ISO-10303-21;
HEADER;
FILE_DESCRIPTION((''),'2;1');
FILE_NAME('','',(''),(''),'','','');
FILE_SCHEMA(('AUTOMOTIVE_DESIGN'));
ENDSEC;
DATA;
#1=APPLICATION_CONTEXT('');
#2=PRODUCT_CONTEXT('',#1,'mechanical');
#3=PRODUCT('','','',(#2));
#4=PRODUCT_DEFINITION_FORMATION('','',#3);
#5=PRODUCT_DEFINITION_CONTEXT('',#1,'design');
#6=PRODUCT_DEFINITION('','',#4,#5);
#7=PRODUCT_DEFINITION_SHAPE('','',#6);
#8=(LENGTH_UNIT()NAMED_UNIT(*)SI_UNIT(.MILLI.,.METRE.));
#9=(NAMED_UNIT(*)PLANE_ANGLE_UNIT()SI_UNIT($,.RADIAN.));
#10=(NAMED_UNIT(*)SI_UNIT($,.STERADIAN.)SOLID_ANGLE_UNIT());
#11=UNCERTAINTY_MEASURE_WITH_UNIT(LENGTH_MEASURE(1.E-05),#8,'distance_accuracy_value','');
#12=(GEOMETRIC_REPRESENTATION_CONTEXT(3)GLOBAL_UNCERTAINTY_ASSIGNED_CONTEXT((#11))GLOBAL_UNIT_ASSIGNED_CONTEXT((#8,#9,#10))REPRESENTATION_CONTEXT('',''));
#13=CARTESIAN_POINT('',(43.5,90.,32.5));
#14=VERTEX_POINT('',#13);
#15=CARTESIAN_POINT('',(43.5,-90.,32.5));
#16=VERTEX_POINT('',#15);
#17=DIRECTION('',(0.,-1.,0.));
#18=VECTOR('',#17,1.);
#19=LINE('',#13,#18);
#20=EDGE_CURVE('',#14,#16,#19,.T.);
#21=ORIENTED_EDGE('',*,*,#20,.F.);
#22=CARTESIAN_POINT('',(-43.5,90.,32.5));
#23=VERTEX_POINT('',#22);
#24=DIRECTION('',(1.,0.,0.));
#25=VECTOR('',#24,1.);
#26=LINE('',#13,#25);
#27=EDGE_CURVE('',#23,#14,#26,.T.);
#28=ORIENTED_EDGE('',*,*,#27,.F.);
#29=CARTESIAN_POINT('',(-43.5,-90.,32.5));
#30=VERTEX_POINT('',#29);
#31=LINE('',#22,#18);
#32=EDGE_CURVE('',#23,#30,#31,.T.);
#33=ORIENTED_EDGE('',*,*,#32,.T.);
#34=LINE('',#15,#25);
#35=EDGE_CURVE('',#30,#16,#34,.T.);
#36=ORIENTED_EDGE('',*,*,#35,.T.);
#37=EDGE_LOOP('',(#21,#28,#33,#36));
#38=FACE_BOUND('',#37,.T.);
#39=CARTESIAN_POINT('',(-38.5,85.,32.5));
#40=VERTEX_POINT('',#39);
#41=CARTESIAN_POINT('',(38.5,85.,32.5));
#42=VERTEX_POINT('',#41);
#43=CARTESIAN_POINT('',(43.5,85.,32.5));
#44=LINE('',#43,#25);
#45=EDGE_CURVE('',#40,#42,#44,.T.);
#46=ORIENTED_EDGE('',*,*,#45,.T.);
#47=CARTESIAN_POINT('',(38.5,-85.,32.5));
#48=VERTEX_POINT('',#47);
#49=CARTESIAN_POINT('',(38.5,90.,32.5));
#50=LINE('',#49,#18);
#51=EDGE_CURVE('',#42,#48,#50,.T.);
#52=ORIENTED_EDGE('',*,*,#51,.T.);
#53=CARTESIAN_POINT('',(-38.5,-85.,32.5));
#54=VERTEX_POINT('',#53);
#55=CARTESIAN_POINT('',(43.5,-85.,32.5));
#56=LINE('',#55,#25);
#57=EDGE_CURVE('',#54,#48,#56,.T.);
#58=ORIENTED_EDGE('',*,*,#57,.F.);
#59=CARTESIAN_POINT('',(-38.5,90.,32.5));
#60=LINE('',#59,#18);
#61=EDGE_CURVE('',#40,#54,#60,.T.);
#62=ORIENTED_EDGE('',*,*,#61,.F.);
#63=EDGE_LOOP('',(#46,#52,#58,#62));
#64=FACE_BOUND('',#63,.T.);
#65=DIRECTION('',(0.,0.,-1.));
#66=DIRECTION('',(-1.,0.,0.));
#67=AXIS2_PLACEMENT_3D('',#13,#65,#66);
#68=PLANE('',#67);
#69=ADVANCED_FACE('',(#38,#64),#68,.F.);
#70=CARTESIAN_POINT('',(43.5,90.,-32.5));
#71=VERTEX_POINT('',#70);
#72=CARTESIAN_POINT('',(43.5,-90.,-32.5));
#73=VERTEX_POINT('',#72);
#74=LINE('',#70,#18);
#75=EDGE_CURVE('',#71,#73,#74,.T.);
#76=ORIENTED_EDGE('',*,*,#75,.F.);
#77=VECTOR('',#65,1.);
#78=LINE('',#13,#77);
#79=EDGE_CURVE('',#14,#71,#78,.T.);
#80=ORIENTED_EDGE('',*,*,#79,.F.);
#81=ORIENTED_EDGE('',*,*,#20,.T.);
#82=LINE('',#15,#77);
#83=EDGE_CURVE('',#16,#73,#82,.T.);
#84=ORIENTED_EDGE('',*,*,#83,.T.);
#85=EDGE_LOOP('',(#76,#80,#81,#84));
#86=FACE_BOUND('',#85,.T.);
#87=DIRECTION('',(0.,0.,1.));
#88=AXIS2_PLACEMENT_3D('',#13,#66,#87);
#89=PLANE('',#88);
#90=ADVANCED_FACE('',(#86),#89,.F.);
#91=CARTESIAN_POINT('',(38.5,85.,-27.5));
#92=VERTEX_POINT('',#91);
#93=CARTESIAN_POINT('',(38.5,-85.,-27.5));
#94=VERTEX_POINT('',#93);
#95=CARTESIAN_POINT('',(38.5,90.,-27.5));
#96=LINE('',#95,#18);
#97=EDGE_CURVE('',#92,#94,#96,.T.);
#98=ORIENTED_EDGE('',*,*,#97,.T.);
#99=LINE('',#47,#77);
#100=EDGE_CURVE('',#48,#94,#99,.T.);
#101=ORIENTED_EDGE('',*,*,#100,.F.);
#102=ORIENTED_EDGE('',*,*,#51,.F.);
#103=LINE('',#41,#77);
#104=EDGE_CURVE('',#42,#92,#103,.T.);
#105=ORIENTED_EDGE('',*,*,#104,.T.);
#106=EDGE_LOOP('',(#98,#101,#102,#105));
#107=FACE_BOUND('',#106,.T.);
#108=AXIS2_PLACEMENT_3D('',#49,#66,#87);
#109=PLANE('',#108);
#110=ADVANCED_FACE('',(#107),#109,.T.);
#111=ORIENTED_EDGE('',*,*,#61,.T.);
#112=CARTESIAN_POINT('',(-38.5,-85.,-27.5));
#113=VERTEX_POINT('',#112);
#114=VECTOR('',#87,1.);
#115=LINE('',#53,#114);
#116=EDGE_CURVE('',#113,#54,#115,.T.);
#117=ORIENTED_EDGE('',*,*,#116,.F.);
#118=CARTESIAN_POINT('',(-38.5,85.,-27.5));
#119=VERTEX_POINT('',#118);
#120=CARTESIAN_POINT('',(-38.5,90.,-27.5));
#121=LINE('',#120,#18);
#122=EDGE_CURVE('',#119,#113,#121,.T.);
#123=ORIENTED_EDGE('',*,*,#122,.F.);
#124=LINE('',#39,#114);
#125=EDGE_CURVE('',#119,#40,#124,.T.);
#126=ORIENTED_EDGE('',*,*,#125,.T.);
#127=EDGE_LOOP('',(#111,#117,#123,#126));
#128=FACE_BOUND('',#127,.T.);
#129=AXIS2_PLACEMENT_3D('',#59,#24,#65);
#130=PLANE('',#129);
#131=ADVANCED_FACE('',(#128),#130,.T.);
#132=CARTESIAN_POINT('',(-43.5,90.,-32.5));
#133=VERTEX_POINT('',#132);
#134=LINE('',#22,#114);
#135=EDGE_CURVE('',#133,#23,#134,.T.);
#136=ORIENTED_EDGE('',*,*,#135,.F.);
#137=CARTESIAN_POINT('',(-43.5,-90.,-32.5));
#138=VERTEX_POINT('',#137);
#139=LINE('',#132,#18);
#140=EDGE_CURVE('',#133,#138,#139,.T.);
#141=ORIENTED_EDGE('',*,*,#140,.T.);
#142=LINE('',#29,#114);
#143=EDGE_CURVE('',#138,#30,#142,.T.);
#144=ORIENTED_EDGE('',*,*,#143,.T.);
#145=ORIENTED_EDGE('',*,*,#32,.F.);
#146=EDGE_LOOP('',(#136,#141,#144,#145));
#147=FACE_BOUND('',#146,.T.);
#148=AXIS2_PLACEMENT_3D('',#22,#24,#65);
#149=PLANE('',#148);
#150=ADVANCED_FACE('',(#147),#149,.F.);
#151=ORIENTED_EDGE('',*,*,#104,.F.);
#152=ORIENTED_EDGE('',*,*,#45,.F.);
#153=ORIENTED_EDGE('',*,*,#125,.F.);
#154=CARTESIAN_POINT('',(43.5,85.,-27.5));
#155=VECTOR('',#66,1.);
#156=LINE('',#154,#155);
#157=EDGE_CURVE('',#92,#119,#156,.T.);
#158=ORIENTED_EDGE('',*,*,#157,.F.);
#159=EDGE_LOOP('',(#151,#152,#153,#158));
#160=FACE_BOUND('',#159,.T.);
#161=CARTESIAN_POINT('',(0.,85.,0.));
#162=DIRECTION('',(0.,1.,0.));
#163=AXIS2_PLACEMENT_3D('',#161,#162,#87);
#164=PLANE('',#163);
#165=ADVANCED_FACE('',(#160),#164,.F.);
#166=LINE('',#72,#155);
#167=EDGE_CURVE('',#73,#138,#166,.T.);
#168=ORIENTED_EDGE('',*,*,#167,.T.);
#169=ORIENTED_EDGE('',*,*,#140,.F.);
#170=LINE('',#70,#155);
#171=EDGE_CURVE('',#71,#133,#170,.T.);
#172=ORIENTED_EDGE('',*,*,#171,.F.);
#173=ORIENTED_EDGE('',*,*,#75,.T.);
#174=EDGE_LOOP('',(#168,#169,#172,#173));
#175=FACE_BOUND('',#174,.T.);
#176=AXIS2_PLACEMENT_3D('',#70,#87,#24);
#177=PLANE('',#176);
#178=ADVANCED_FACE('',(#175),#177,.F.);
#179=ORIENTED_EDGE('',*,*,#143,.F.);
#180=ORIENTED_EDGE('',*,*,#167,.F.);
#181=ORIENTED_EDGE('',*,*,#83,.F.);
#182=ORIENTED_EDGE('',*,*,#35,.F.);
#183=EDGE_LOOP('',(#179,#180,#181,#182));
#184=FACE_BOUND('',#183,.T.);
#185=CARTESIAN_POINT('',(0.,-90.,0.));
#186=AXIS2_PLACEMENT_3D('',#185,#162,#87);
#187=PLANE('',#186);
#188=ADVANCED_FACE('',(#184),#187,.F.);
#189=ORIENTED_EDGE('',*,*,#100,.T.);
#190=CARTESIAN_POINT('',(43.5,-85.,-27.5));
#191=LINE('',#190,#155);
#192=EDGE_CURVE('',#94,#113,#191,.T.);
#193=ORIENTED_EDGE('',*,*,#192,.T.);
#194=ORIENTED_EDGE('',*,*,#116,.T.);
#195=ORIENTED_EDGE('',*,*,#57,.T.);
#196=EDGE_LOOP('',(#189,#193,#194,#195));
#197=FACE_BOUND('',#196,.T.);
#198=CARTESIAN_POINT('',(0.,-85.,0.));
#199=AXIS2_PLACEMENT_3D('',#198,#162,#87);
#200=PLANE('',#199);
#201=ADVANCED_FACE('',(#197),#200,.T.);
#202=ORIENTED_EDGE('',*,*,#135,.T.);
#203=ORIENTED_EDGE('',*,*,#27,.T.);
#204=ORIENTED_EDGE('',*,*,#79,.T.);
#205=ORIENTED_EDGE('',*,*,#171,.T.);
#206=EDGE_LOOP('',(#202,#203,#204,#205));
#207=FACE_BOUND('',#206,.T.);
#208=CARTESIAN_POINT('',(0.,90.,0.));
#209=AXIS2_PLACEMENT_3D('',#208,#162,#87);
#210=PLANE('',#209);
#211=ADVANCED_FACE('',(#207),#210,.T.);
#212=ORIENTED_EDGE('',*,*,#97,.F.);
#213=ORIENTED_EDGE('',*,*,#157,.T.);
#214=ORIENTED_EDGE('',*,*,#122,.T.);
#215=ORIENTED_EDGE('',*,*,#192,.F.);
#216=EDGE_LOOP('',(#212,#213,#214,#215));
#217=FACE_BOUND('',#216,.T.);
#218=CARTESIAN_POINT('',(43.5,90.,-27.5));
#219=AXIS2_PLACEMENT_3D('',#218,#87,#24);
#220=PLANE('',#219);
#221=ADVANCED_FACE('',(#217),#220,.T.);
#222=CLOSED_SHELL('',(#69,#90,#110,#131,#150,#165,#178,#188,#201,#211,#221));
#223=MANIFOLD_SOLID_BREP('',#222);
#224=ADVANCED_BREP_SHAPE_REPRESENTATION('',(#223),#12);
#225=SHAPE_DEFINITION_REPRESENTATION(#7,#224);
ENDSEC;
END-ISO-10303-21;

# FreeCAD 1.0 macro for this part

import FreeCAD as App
import Part
import Sketcher

V = App.Vector
Q = App.Units.Quantity


def faces_at(feature, points):
    """Names of the faces that lie closest to the given points."""
    faces = feature.Shape.Faces
    near = lambda p: min(range(len(faces)), key=lambda i: faces[i].distToShape(Part.Vertex(*p))[0])
    return sorted({f"Face{near(p) + 1}" for p in points})


def add_polygon(sketch, points):
    """Adds a closed chain of lines whose ends are joined by coincident constraints."""
    first, n = sketch.GeometryCount, len(points)
    for a, b in zip(points, points[1:] + points[:1]):
        sketch.addGeometry(Part.LineSegment(App.Vector(*a, 0), App.Vector(*b, 0)), False)
    for i in range(n):
        sketch.addConstraint(Sketcher.Constraint("Coincident", first + i, 2, first + (i + 1) % n, 1))

doc = App.newDocument("Part")
body = doc.addObject("PartDesign::Body", "Body")

# Sketch on XZ plane
sketch1 = body.newObject("Sketcher::SketchObject", "Sketch")
sketch1.AttachmentSupport = (doc.getObject("XZ_Plane"), [""])
sketch1.MapMode = "FlatFace"
add_polygon(sketch1, [(44, 32), (44, -32), (-44, -32), (-44, 32)])  # lines 0-3
sketch1.addConstraint([
    Sketcher.Constraint("Vertical", 0),
    Sketcher.Constraint("Horizontal", 1),
    Sketcher.Constraint("Vertical", 2),
    Sketcher.Constraint("Horizontal", 3),
    Sketcher.Constraint("Symmetric", 0, 2, 2, 2, -1, 1),
    Sketcher.Constraint("DistanceX", 1, 2, 1, 1, Q("87 mm")),
    Sketcher.Constraint("DistanceY", 0, 2, 0, 1, Q("65 mm")),
])
pad1 = body.newObject("PartDesign::Pad", "Pad")
pad1.Profile = sketch1
pad1.Length = 180
pad1.Midplane = True
doc.recompute()

thickness = body.newObject("PartDesign::Thickness", "Thickness")
thickness.Base = (pad1, faces_at(pad1, [(0, 0, 32.5)]))
thickness.Value = 5
thickness.Reversed = True
thickness.Join = "Intersection"

doc.recompute()
